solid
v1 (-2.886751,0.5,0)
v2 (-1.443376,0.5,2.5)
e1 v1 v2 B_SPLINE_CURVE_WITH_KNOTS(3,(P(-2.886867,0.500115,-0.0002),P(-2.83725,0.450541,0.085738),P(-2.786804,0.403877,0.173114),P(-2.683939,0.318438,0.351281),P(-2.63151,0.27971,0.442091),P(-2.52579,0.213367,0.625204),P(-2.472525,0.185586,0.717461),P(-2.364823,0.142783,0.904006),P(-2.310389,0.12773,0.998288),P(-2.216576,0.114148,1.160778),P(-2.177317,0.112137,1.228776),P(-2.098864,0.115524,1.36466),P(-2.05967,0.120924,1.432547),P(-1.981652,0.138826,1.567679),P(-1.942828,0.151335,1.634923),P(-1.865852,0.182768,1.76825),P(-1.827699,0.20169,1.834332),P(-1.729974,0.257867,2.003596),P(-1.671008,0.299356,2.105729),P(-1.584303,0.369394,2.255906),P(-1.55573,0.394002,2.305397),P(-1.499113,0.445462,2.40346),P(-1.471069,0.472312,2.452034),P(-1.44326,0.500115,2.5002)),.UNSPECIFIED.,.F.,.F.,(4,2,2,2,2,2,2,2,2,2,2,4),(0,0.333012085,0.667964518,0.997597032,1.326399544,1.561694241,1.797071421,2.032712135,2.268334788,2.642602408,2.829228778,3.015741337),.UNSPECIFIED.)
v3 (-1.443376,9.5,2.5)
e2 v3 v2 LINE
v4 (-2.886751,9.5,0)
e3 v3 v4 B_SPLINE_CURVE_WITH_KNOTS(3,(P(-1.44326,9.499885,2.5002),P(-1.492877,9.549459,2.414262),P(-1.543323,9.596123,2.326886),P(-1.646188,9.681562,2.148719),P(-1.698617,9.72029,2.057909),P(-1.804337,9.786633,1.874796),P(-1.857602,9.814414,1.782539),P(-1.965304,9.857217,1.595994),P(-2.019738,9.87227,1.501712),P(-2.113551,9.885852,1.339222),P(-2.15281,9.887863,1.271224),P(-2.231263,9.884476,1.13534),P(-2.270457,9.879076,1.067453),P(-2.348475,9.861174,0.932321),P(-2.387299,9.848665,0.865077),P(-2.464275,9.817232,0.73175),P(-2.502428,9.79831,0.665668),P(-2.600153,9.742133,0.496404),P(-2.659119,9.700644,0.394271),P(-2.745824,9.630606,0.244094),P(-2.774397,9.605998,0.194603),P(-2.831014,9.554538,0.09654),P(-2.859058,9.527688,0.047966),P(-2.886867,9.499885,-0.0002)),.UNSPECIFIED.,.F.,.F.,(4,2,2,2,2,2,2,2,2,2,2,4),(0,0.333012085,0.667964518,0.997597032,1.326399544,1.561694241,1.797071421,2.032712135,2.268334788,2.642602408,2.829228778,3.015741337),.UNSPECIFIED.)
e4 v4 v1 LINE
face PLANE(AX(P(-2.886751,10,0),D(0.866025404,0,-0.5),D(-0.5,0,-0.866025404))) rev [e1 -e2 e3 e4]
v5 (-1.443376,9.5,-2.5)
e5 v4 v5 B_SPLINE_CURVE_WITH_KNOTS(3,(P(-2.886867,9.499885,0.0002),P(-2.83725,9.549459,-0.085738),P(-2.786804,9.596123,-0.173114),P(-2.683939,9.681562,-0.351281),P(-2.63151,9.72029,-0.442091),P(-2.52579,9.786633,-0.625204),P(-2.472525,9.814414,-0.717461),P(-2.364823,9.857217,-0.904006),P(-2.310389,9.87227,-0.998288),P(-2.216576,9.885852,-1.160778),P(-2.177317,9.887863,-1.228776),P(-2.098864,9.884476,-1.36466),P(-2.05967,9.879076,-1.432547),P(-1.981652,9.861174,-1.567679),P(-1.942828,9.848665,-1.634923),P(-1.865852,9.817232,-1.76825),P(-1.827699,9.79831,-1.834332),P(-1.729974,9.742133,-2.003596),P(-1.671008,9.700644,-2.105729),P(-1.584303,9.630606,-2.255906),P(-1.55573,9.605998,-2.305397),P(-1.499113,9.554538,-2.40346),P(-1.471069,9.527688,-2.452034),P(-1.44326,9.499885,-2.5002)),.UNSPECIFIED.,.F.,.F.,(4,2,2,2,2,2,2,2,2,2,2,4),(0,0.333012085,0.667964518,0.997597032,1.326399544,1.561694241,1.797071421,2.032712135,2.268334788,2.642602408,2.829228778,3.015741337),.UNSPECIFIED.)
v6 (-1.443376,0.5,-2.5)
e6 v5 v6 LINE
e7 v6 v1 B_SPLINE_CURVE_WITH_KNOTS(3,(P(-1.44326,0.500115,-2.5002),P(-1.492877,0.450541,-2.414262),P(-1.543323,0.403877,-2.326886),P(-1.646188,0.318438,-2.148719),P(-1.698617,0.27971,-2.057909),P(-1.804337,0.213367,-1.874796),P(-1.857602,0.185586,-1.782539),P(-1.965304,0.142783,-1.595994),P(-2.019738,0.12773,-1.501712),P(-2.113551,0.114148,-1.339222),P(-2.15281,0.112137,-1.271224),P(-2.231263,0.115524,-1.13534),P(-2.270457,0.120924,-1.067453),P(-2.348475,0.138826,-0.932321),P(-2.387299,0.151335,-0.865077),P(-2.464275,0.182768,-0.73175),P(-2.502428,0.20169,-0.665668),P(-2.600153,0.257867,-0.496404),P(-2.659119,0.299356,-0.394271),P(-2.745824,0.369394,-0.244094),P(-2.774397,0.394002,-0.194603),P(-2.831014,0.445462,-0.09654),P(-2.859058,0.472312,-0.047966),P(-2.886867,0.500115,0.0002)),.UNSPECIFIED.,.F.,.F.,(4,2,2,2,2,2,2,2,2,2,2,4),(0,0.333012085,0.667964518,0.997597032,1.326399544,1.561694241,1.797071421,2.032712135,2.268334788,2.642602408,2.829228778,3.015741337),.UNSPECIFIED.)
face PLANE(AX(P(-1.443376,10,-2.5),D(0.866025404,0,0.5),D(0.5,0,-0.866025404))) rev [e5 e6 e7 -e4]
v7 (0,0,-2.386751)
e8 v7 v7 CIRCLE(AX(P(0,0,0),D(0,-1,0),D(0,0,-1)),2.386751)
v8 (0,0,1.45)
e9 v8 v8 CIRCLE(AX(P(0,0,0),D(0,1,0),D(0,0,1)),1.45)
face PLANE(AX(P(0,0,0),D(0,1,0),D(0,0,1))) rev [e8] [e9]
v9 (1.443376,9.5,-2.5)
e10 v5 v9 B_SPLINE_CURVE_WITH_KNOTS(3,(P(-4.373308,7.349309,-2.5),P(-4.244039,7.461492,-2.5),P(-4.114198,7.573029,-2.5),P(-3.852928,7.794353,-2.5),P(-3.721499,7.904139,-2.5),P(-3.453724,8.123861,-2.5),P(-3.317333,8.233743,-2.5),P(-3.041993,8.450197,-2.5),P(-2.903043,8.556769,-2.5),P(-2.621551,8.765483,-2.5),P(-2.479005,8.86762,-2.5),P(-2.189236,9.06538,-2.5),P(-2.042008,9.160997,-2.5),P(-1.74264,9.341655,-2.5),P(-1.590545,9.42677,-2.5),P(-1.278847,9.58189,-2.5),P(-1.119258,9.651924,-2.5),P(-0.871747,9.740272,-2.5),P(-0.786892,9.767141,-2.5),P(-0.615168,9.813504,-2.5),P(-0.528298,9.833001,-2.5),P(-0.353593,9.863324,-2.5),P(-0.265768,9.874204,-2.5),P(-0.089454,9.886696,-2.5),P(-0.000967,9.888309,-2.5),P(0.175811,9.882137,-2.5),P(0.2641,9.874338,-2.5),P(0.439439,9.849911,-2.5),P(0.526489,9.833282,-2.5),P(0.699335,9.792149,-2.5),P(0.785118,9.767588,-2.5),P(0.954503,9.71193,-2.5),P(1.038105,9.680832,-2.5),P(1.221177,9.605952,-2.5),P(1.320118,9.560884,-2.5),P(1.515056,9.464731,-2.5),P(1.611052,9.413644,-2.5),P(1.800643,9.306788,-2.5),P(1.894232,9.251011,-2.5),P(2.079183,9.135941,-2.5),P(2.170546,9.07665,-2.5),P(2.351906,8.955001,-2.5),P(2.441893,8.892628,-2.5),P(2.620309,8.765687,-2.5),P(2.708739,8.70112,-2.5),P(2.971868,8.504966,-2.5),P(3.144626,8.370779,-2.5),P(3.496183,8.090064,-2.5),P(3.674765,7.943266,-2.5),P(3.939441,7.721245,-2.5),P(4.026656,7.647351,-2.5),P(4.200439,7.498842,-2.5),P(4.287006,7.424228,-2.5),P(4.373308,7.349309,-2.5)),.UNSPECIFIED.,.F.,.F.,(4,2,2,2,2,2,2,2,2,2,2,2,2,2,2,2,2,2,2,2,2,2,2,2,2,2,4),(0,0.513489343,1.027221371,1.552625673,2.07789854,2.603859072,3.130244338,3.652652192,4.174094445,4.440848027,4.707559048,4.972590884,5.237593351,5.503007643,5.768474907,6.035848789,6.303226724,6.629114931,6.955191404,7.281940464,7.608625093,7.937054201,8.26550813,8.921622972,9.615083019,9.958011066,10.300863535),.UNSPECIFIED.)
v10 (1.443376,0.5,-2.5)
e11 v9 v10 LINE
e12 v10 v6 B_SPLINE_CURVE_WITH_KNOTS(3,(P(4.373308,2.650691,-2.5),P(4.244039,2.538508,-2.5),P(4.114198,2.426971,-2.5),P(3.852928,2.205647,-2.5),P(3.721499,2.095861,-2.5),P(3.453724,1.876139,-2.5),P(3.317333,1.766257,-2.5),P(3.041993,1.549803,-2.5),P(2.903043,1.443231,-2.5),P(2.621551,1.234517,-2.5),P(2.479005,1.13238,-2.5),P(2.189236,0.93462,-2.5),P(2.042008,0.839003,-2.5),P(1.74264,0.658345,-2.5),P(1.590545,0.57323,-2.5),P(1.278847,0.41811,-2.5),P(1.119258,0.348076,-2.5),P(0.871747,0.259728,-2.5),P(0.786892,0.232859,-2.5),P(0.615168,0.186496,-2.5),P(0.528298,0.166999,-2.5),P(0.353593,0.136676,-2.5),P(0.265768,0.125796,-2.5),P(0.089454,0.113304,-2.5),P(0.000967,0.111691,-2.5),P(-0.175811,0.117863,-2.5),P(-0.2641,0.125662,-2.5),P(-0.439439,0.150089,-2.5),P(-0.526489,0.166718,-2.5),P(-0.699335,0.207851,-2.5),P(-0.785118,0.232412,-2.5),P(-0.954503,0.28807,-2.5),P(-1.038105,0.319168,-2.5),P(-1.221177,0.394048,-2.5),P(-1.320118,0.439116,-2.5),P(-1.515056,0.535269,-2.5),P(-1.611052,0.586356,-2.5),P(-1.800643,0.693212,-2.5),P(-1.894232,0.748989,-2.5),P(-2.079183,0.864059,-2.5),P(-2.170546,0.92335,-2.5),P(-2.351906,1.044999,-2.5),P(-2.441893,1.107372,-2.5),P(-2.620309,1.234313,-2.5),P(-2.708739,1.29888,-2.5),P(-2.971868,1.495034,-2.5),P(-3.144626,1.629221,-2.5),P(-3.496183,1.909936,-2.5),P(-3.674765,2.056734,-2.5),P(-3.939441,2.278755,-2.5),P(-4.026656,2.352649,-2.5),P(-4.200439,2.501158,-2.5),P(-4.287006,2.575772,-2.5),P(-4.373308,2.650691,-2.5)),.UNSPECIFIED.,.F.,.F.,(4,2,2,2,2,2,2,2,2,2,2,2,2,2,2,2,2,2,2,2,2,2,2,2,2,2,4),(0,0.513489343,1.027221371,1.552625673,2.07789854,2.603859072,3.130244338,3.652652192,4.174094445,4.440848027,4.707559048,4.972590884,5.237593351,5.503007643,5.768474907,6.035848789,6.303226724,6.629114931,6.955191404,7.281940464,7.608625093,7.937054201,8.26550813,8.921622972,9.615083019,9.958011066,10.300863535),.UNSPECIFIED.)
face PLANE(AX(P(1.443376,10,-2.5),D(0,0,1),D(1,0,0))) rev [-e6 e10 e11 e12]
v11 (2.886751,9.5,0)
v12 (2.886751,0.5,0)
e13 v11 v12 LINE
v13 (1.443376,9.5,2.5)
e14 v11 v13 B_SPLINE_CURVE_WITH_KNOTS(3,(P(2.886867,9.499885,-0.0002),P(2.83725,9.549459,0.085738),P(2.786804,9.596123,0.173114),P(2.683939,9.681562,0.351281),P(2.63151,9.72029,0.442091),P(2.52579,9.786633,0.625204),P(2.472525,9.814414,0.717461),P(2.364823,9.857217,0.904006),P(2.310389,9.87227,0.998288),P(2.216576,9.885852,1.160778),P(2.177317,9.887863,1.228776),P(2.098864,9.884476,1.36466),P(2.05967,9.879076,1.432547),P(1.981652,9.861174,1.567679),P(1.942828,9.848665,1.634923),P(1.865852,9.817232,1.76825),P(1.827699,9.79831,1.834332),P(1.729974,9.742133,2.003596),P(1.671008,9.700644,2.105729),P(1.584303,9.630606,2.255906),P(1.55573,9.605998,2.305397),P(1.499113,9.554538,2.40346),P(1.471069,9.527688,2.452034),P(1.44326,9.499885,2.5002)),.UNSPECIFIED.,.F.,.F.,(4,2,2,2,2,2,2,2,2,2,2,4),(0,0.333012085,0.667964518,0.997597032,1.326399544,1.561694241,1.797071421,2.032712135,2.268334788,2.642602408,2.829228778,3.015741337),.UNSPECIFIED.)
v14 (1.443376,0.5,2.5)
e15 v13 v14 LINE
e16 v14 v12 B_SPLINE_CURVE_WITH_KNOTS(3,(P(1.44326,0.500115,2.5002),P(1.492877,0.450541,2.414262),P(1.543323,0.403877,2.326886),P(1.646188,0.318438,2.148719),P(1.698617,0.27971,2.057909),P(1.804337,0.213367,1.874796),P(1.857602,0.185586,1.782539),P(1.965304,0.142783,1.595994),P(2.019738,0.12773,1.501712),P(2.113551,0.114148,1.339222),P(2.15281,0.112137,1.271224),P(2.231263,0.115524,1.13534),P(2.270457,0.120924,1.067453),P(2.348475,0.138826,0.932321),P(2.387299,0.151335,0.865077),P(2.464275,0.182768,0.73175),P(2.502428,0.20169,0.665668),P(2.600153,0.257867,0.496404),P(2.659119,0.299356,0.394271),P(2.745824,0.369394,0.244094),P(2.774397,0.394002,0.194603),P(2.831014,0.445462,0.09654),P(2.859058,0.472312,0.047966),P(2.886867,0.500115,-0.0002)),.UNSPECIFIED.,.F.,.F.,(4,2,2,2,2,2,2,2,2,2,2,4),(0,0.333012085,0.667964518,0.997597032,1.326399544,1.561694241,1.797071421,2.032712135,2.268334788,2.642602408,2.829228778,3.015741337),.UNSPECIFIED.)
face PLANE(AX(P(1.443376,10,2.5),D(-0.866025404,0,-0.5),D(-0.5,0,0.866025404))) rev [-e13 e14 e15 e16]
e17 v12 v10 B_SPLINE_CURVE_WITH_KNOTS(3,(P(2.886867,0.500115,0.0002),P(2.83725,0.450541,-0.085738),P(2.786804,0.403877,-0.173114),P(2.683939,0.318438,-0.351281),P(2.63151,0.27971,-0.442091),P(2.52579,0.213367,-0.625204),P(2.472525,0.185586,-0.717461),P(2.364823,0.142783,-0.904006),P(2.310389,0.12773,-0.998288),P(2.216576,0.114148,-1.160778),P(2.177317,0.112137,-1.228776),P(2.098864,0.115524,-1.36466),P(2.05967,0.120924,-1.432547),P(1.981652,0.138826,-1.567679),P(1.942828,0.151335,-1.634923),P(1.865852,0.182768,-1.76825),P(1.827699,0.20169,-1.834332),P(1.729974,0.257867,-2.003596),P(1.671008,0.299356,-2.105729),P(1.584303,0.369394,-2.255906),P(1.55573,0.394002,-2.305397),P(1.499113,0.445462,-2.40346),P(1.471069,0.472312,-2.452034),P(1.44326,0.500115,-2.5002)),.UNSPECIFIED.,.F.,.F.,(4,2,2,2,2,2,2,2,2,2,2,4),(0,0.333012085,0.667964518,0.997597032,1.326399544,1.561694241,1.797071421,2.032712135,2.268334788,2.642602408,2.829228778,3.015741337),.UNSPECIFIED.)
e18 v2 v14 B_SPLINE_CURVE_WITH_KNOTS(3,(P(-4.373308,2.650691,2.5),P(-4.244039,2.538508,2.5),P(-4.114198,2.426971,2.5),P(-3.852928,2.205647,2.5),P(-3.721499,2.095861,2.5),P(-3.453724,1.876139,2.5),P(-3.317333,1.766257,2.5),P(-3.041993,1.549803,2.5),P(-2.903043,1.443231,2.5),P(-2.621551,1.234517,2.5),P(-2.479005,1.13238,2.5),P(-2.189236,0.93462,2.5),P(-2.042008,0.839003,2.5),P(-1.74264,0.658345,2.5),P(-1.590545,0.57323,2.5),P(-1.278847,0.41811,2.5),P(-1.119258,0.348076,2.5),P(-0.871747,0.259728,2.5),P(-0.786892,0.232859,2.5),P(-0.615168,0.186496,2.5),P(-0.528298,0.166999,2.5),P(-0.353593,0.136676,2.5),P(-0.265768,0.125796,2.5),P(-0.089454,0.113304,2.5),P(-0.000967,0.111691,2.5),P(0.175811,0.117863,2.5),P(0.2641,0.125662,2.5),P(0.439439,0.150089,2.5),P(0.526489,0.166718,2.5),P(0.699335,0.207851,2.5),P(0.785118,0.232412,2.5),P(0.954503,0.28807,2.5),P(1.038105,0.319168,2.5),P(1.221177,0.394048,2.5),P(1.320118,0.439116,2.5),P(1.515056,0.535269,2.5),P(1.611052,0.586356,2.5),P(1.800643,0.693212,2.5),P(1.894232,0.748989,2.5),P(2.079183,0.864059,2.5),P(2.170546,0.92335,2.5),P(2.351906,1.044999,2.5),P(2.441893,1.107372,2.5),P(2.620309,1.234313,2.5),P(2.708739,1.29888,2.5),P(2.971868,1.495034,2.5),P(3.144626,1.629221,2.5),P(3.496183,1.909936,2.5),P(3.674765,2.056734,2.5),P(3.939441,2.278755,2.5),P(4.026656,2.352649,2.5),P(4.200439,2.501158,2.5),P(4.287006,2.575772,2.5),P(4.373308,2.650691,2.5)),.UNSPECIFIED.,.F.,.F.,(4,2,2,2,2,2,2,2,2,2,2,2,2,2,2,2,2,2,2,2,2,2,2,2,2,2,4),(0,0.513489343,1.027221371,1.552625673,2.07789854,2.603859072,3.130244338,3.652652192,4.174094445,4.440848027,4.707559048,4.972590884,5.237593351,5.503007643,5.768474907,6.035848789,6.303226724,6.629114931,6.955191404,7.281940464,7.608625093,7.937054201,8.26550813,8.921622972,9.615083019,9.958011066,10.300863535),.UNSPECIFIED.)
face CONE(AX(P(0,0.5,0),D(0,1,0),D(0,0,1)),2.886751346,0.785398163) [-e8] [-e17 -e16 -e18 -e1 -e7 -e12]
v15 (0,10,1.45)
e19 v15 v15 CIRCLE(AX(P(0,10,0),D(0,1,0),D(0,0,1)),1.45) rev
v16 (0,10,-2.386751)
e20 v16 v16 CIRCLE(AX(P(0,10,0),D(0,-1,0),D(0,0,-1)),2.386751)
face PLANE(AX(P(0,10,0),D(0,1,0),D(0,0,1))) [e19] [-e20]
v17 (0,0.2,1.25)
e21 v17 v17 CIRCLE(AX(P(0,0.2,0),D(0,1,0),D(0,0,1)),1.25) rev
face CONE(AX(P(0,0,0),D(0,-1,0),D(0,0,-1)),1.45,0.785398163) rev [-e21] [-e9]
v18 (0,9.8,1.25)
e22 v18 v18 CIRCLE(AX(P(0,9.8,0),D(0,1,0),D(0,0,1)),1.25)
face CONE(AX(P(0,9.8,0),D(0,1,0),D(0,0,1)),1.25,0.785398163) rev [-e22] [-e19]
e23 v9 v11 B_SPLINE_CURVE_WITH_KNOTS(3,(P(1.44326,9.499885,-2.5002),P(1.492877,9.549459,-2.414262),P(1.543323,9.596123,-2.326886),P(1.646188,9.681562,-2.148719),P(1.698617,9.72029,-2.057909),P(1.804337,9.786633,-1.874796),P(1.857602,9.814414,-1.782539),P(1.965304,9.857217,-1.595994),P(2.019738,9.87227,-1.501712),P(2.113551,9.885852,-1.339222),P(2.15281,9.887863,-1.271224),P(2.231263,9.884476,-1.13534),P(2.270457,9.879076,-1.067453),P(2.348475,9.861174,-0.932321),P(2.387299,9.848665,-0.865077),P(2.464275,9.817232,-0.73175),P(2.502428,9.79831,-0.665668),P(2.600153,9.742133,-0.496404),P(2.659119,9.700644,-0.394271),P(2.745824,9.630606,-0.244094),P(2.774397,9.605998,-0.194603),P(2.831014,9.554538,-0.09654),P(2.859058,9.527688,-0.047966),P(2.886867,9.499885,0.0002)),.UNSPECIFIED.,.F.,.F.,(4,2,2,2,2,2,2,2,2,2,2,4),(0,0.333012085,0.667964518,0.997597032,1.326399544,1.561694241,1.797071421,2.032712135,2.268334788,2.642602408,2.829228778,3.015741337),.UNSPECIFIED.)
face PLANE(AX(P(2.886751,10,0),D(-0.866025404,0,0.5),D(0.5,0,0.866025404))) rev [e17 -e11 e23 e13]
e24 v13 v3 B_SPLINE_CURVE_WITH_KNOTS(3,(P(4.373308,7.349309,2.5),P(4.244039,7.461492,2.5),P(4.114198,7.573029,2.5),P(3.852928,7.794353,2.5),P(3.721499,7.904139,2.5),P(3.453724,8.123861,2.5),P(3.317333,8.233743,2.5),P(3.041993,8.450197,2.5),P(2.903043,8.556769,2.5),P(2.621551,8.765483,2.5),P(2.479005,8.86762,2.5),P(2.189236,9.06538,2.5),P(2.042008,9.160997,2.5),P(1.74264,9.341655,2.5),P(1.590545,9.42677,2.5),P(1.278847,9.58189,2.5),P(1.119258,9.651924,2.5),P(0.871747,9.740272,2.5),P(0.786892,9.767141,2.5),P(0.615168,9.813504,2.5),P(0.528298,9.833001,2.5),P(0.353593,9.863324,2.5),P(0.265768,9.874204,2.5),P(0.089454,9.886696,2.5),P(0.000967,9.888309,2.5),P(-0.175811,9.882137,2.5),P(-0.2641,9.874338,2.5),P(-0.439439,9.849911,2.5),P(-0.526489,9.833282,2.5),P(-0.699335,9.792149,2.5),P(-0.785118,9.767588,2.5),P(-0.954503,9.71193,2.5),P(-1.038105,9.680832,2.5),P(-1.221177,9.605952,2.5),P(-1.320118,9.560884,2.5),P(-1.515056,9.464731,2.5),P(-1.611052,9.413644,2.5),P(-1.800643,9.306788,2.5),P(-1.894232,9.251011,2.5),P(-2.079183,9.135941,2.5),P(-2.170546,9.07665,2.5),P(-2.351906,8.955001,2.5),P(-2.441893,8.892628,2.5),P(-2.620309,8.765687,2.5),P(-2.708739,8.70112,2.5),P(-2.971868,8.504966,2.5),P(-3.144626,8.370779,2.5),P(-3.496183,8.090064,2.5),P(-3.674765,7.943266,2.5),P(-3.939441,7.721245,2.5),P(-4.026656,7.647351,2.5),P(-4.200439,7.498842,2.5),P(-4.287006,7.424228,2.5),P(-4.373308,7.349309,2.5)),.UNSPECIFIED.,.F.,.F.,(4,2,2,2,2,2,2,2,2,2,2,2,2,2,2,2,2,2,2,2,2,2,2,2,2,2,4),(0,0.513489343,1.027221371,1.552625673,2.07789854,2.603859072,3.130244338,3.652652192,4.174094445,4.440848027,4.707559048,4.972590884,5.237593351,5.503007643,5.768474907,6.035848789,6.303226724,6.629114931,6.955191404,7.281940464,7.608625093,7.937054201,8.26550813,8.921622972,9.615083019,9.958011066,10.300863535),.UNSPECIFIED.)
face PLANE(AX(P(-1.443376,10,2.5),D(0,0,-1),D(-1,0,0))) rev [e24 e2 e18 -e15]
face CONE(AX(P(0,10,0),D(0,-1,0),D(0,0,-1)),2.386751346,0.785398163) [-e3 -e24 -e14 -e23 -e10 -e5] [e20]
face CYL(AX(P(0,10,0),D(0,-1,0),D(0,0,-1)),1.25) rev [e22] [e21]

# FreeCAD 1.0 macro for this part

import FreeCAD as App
import Part
import Sketcher
Q = App.Units.Quantity


def edges_at(feature, points):
    """Names of the edges that pass closest to the given points."""
    edges = feature.Shape.Edges
    near = lambda p: min(range(len(edges)), key=lambda i: edges[i].distToShape(Part.Vertex(*p))[0])
    return sorted({f"Edge{near(p) + 1}" for p in points})


def add_polygon(sketch, points):
    """Adds a closed chain of lines whose ends are joined by coincident constraints."""
    first, n = sketch.GeometryCount, len(points)
    for a, b in zip(points, points[1:] + points[:1]):
        sketch.addGeometry(Part.LineSegment(App.Vector(*a, 0), App.Vector(*b, 0)), False)
    for i in range(n):
        sketch.addConstraint(Sketcher.Constraint("Coincident", first + i, 2, first + (i + 1) % n, 1))

doc = App.newDocument("Part")
params = doc.addObject("Spreadsheet::Sheet", "Params")
for row, (alias, value) in enumerate([
    ("sketch1_diameter", "2.5 mm"),
    ("pad1_length", "10 mm"),
    ("chamfer_size", "0.2 mm"),
    ("sketch2_width", "0.5 mm"),
    ("groove_angle", "360 deg"),
], start=1):
    params.set(f"A{row}", alias)
    params.set(f"B{row}", "=" + value)
    params.setAlias(f"B{row}", alias)

body = doc.addObject("PartDesign::Body", "Body")

# Sketch on XZ plane
sketch1 = doc.addObject("Sketcher::SketchObject", "Sketch")
body.addObject(sketch1)
sketch1.AttachmentSupport = (doc.XZ_Plane, [""])
sketch1.MapMode = "FlatFace"
add_polygon(sketch1, [(1.4, -2.5), (-1.4, -2.5), (-2.9, 0), (-1.4, 2.5), (1.4, 2.5), (2.9, 0)])  # lines 0-5
sketch1.addGeometry(Part.Circle(App.Vector(0, 0, 0), App.Vector(0, 0, 1), 1.2), False)  # 6
sketch1.addConstraint([
    Sketcher.Constraint("Horizontal", 0),
    Sketcher.Constraint("Horizontal", 3),
    Sketcher.Constraint("Coincident", 6, 3, -1, 1),
    Sketcher.Constraint("Symmetric", 0, 2, 3, 2, -1, 1),
    Sketcher.Constraint("Symmetric", 1, 2, 4, 2, -1, 1),
    Sketcher.Constraint("PointOnObject", 1, 2, -1),
    Sketcher.Constraint("Parallel", 2, 5),
    Sketcher.Constraint("Vertical", 0, 2, 2, 2),
    Sketcher.Constraint("Diameter", 6, 2.5),
    Sketcher.Constraint("Angle", 1, Q("120 deg")),
    Sketcher.Constraint("DistanceY", 0, 2, 2, 2, 5.0),
    Sketcher.Constraint("DistanceX", 0, 2, 0, 1, 2.886751),
])
sketch1.setExpression("Constraints[14]", "Params.sketch1_diameter")
pad1 = doc.addObject("PartDesign::Pad", "Pad")
body.addObject(pad1)
pad1.Profile = sketch1
pad1.setExpression("Length", "Params.pad1_length")
pad1.Reversed = True
doc.recompute()

chamfer = doc.addObject("PartDesign::Chamfer", "Chamfer")
body.addObject(chamfer)
chamfer.Base = (pad1, edges_at(pad1, [(0, 0, -1.25), (0, 10, -1.25)]))
chamfer.setExpression("Size", "Params.chamfer_size")

# Sketch on XY plane
sketch2 = doc.addObject("Sketcher::SketchObject", "Sketch001")
body.addObject(sketch2)
sketch2.AttachmentSupport = (doc.XY_Plane, [""])
sketch2.MapMode = "FlatFace"
add_polygon(sketch2, [(2.4, 10), (2.9, 9.5), (2.9, 10)])  # lines 0-2
add_polygon(sketch2, [(2.4, 0), (2.9, 0), (2.9, 0.5)])  # lines 3-5
sketch2.addConstraint([
    Sketcher.Constraint("Vertical", 1),
    Sketcher.Constraint("Horizontal", 2),
    Sketcher.Constraint("Horizontal", 3),
    Sketcher.Constraint("Vertical", 4),
    Sketcher.Constraint("PointOnObject", 3, 2, -1),
    Sketcher.Constraint("Perpendicular", 0, 5),
    Sketcher.Constraint("Vertical", 1, 2, 3, 2),
    Sketcher.Constraint("Vertical", 2, 2, 5, 2),
    Sketcher.Constraint("Equal", 3, 1),
    Sketcher.Constraint("DistanceX", 2, 2, 2, 1, 0.5),
    Sketcher.Constraint("DistanceY", -1, 1, 1, 2, 10.0),
    Sketcher.Constraint("DistanceX", -1, 1, 0, 2, 2.886751),
])
sketch2.setExpression("Constraints[15]", "Params.sketch2_width")
groove = doc.addObject("PartDesign::Groove", "Groove")
body.addObject(groove)
groove.Profile = sketch2
groove.ReferenceAxis = (sketch2, ["V_Axis"])
groove.setExpression("Angle", "Params.groove_angle")

doc.recompute()
